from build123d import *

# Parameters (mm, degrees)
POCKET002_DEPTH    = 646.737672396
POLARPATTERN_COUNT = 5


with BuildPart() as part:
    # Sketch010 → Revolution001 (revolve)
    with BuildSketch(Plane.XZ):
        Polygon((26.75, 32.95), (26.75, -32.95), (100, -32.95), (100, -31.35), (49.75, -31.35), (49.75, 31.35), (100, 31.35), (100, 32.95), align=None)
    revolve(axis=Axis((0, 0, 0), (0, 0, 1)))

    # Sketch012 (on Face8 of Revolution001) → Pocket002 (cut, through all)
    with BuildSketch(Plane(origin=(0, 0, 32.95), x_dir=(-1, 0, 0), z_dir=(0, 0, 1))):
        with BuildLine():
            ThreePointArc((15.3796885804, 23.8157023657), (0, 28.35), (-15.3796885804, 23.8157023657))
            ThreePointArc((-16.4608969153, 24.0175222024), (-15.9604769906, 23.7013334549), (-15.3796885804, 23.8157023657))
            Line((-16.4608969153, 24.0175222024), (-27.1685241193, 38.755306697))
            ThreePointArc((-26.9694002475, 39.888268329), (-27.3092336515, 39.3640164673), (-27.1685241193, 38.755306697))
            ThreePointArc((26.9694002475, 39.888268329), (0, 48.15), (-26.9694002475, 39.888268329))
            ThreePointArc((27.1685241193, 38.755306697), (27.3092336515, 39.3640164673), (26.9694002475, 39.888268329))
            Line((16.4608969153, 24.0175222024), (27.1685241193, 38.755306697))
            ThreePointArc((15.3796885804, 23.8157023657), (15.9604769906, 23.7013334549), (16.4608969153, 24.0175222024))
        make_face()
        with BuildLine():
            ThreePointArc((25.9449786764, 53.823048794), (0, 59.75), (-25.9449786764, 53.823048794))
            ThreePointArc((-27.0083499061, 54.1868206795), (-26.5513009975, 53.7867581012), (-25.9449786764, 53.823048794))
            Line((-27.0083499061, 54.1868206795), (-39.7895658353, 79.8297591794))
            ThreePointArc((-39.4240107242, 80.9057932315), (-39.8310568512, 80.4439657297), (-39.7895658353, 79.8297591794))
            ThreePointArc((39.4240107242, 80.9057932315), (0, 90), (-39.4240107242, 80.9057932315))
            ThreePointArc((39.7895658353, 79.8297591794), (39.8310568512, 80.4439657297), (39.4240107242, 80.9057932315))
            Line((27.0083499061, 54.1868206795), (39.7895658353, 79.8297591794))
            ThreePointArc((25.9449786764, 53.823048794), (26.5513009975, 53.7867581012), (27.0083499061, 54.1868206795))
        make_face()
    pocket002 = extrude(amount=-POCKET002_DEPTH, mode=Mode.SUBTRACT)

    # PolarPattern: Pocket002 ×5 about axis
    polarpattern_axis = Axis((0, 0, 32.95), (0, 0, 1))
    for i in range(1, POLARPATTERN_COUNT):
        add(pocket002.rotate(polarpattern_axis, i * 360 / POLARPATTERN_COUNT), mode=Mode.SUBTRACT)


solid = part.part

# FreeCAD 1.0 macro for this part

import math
import FreeCAD as App
import Part
import Sketcher
from FreeCAD import Vector
Q = App.Units.Quantity


def add_polygon(sketch, points):
    """Adds a closed chain of lines whose ends are joined by coincident constraints."""
    first, n = sketch.GeometryCount, len(points)
    for a, b in zip(points, points[1:] + points[:1]):
        sketch.addGeometry(Part.LineSegment(App.Vector(*a, 0), App.Vector(*b, 0)), False)
    for i in range(n):
        sketch.addConstraint(Sketcher.Constraint("Coincident", first + i, 2, first + (i + 1) % n, 1))

doc = App.newDocument("Part")
body = doc.addObject("PartDesign::Body", "Body")

sketch1 = doc.addObject("Sketcher::SketchObject", "Sketch")
body.addObject(sketch1)
sketch1.AttachmentSupport = (doc.XZ_Plane, [""])
sketch1.MapMode = "FlatFace"
add_polygon(sketch1, [(26.75, 32.95), (26.75, -32.95), (100, -32.95), (100, -31.35), (49.75, -31.35), (49.75, 31.35), (100, 31.35), (100, 32.95)])
sketch1.addConstraint([
    Sketcher.Constraint("Vertical", 0),
    Sketcher.Constraint("Horizontal", 1),
    Sketcher.Constraint("Vertical", 2),
    Sketcher.Constraint("Horizontal", 3),
    Sketcher.Constraint("Vertical", 4),
    Sketcher.Constraint("Horizontal", 5),
    Sketcher.Constraint("Vertical", 6),
    Sketcher.Constraint("Horizontal", 7),
    Sketcher.Constraint("Symmetric", 2, 2, 5, 2, -1),
    Sketcher.Constraint("Equal", 2, 6),
    Sketcher.Constraint("DistanceY", 0, 2, 0, 1, Q("65.9 mm")),
    Sketcher.Constraint("DistanceY", 2, 1, 2, 2, Q("1.6 mm")),
    Sketcher.Constraint("DistanceX", -1, 1, 1, 2, Q("100 mm")),
    Sketcher.Constraint("DistanceX", 0, 2, 3, 2, Q("23 mm")),
    Sketcher.Constraint("DistanceX", 1, 1, 1, 2, Q("73.25 mm")),
])
revolution = doc.addObject("PartDesign::Revolution", "Revolution")
body.addObject(revolution)
revolution.Profile = sketch1
revolution.ReferenceAxis = (sketch1, ["V_Axis"])
revolution.Angle = 360

sketch2 = doc.addObject("Sketcher::SketchObject", "Sketch001")
body.addObject(sketch2)
sketch2.AttachmentSupport = (doc.XY_Plane, [""])
sketch2.MapMode = "FlatFace"
sketch2.AttachmentOffset = App.Placement(Vector(0, 0, 32.95), App.Rotation())
sketch2.addGeometry([
    Part.ArcOfCircle(Part.Circle(Vector(0, 0, 0), Vector(0, 0, 1), 28.35), math.radians(-122.853539), math.radians(-57.146461)),
    Part.ArcOfCircle(Part.Circle(Vector(-15.813683, -24.48775, 0), Vector(0, 0, 1), 0.8), math.radians(57.146461), math.radians(144)),
    Part.LineSegment(Vector(-16.460897, -24.017522, 0), Vector(-27.168524, -38.755307, 0)),
    Part.ArcOfCircle(Part.Circle(Vector(-26.521311, -39.225535, 0), Vector(0, 0, 1), 0.8), math.radians(144), math.radians(235.936446)),
    Part.ArcOfCircle(Part.Circle(Vector(0, 0, 0), Vector(0, 0, 1), 48.15), math.radians(-124.063554), math.radians(-55.936446)),
    Part.ArcOfCircle(Part.Circle(Vector(26.521311, -39.225535, 0), Vector(0, 0, 1), 0.8), math.radians(-55.936446), math.radians(36)),
    Part.LineSegment(Vector(27.168524, -38.755307, 0), Vector(16.460897, -24.017522, 0)),
    Part.ArcOfCircle(Part.Circle(Vector(15.813683, -24.48775, 0), Vector(0, 0, 1), 0.8), math.radians(36), math.radians(122.853539)),
    Part.ArcOfCircle(Part.Circle(Vector(0, 0, 0), Vector(0, 0, 1), 59.75), math.radians(-115.736027), math.radians(-64.263973)),
    Part.ArcOfCircle(Part.Circle(Vector(-26.292359, -54.543692, 0), Vector(0, 0, 1), 0.8), math.radians(64.263973), math.radians(153.506947)),
    Part.LineSegment(Vector(-27.00835, -54.186821, 0), Vector(-39.789566, -79.829759, 0)),
    Part.ArcOfCircle(Part.Circle(Vector(-39.073575, -80.186631, 0), Vector(0, 0, 1), 0.8), math.radians(153.506947), math.radians(244.020817)),
    Part.ArcOfCircle(Part.Circle(Vector(0, 0, 0), Vector(0, 0, 1), 90), math.radians(-115.979183), math.radians(-64.020817)),
    Part.ArcOfCircle(Part.Circle(Vector(39.073575, -80.186631, 0), Vector(0, 0, 1), 0.8), math.radians(-64.020817), math.radians(26.493053)),
    Part.LineSegment(Vector(39.789566, -79.829759, 0), Vector(27.00835, -54.186821, 0)),
    Part.ArcOfCircle(Part.Circle(Vector(26.292359, -54.543692, 0), Vector(0, 0, 1), 0.8), math.radians(26.493053), math.radians(115.736027)),
], False)
sketch2.addConstraint([
    Sketcher.Constraint("Tangent", 0, 1, 1, 1),
    Sketcher.Constraint("Tangent", 1, 2, 2, 1),
    Sketcher.Constraint("Tangent", 2, 2, 3, 1),
    Sketcher.Constraint("Tangent", 3, 2, 4, 1),
    Sketcher.Constraint("Tangent", 4, 2, 5, 1),
    Sketcher.Constraint("Tangent", 5, 2, 6, 1),
    Sketcher.Constraint("Tangent", 6, 2, 7, 1),
    Sketcher.Constraint("Tangent", 7, 2, 0, 2),
    Sketcher.Constraint("Tangent", 8, 1, 9, 1),
    Sketcher.Constraint("Tangent", 9, 2, 10, 1),
    Sketcher.Constraint("Tangent", 10, 2, 11, 1),
    Sketcher.Constraint("Tangent", 11, 2, 12, 1),
    Sketcher.Constraint("Tangent", 12, 2, 13, 1),
    Sketcher.Constraint("Tangent", 13, 2, 14, 1),
    Sketcher.Constraint("Tangent", 14, 2, 15, 1),
    Sketcher.Constraint("Tangent", 15, 2, 8, 2),
    Sketcher.Constraint("Coincident", 0, 3, -1, 1),
    Sketcher.Constraint("Coincident", 4, 3, -1, 1),
    Sketcher.Constraint("Coincident", 8, 3, -1, 1),
    Sketcher.Constraint("Coincident", 12, 3, -1, 1),
    Sketcher.Constraint("Equal", 1, 3),
    Sketcher.Constraint("Equal", 3, 5),
    Sketcher.Constraint("Equal", 5, 7),
    Sketcher.Constraint("Equal", 7, 9),
    Sketcher.Constraint("Equal", 9, 11),
    Sketcher.Constraint("Equal", 11, 13),
    Sketcher.Constraint("Equal", 13, 15),
    Sketcher.Constraint("Symmetric", 2, 2, 5, 2, -2),
    Sketcher.Constraint("Symmetric", 10, 2, 13, 2, -2),
    Sketcher.Constraint("Radius", 12, Q("90 mm")),
    Sketcher.Constraint("Radius", 1, Q("0.8 mm")),
    Sketcher.Constraint("Angle", 2, Q("-126 deg")),
    Sketcher.Constraint("Radius", 0, Q("28.35 mm")),
    Sketcher.Constraint("Radius", 4, Q("48.15 mm")),
    Sketcher.Constraint("Radius", 8, Q("59.75 mm")),
    Sketcher.Constraint("DistanceX", 3, 2, -1, 1, Q("26.9694 mm")),
    Sketcher.Constraint("DistanceY", 11, 2, 9, 3, Q("26.362101 mm")),
    Sketcher.Constraint("DistanceX", 5, 3, 12, 2, Q("12.9027 mm")),
])
pocket1 = doc.addObject("PartDesign::Pocket", "Pocket")
body.addObject(pocket1)
pocket1.Profile = sketch2
pocket1.Type = "ThroughAll"
doc.recompute()

polarpattern = doc.addObject("PartDesign::PolarPattern", "PolarPattern")
body.addObject(polarpattern)
polarpattern.Originals = [pocket1]
polarpattern.Axis = (doc.Z_Axis, [""])
polarpattern.Angle = 360
polarpattern.Occurrences = 5
body.Tip = polarpattern

doc.recompute()
